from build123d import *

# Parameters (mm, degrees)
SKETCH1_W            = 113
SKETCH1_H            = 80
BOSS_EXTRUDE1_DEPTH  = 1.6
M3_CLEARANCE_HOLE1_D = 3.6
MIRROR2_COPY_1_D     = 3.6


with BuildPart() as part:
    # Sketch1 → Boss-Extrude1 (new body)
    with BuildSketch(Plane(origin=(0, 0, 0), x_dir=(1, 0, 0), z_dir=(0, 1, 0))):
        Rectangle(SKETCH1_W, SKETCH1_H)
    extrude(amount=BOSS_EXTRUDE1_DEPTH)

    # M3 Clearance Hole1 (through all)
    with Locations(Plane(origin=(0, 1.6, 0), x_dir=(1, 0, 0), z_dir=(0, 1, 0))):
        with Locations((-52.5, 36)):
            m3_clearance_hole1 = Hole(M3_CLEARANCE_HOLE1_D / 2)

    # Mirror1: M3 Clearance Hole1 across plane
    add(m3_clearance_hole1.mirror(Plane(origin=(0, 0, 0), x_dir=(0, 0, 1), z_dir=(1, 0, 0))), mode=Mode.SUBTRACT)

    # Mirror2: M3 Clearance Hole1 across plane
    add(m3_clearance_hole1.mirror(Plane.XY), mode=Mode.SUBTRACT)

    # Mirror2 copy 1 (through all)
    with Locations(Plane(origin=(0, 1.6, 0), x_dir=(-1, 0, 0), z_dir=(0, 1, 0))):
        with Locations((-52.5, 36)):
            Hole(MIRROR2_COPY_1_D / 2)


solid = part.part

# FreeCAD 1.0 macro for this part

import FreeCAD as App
import Part
import Sketcher
Q = App.Units.Quantity


def add_polygon(sketch, points):
    """Adds a closed chain of lines whose ends are joined by coincident constraints."""
    first, n = sketch.GeometryCount, len(points)
    for a, b in zip(points, points[1:] + points[:1]):
        sketch.addGeometry(Part.LineSegment(App.Vector(*a, 0), App.Vector(*b, 0)), False)
    for i in range(n):
        sketch.addConstraint(Sketcher.Constraint("Coincident", first + i, 2, first + (i + 1) % n, 1))

doc = App.newDocument("Part")
body = doc.addObject("PartDesign::Body", "Body")

# Sketch on XZ plane
sketch1 = body.newObject("Sketcher::SketchObject", "Sketch")
sketch1.AttachmentSupport = (doc.getObject("XZ_Plane"), [""])
sketch1.MapMode = "FlatFace"
add_polygon(sketch1, [(-56, -40), (-56, 40), (56, 40), (56, -40)])  # lines 0-3
sketch1.addConstraint(Sketcher.Constraint("Vertical", 0))
sketch1.addConstraint(Sketcher.Constraint("Horizontal", 1))
sketch1.addConstraint(Sketcher.Constraint("Vertical", 2))
sketch1.addConstraint(Sketcher.Constraint("Horizontal", 3))
sketch1.addConstraint(Sketcher.Constraint("Symmetric", 0, 2, 2, 2, -1, 1))
sketch1.addConstraint(Sketcher.Constraint("DistanceX", 1, 1, 1, 2, Q("113 mm")))
sketch1.addConstraint(Sketcher.Constraint("DistanceY", 0, 1, 0, 2, Q("80 mm")))
pad1 = body.newObject("PartDesign::Pad", "Pad")
pad1.Profile = sketch1
pad1.Length = 1.6
pad1.Reversed = True

# Sketch on XZ plane
sketch2 = body.newObject("Sketcher::SketchObject", "Sketch001")
sketch2.AttachmentSupport = (doc.getObject("XZ_Plane"), [""])
sketch2.MapMode = "FlatFace"
sketch2.AttachmentOffset = App.Placement(App.Vector(0, 0, -1.6), App.Rotation())
sketch2.addGeometry(Part.Circle(App.Vector(-52.5, -36, 0), App.Vector(0, 0, 1), 1.8), False)
sketch2.addConstraint(Sketcher.Constraint("Diameter", 0, Q("3.6 mm")))
sketch2.addConstraint(Sketcher.Constraint("DistanceY", 0, 3, -1, 1, Q("36 mm")))
sketch2.addConstraint(Sketcher.Constraint("DistanceX", 0, 3, -1, 1, Q("52.5 mm")))
doc.recompute()
hole = body.newObject("PartDesign::Hole", "Hole")
hole.Profile = sketch2
hole.ThreadType = "None"
hole.Diameter = 3.6
hole.DepthType = "ThroughAll"
hole.Reversed = True
doc.recompute()

mirrored = body.newObject("PartDesign::Mirrored", "Mirrored")
mirrored.Originals = [hole]
mirrored.MirrorPlane = (doc.getObject("YZ_Plane"), [""])
body.Tip = mirrored
doc.recompute()

mirrored2 = body.newObject("PartDesign::Mirrored", "Mirrored001")
mirrored2.Originals = [hole]
mirrored2.MirrorPlane = (doc.getObject("XY_Plane"), [""])
body.Tip = mirrored2

# Sketch on XZ plane
sketch3 = body.newObject("Sketcher::SketchObject", "Sketch002")
sketch3.AttachmentSupport = (doc.getObject("XZ_Plane"), [""])
sketch3.MapMode = "FlatFace"
sketch3.AttachmentOffset = App.Placement(App.Vector(0, 0, -1.6), App.Rotation())
sketch3.addGeometry(Part.Circle(App.Vector(52.5, 36, 0), App.Vector(0, 0, 1), 1.8), False)
sketch3.addConstraint(Sketcher.Constraint("Diameter", 0, Q("3.6 mm")))
sketch3.addConstraint(Sketcher.Constraint("DistanceY", -1, 1, 0, 3, Q("36 mm")))
sketch3.addConstraint(Sketcher.Constraint("DistanceX", -1, 1, 0, 3, Q("52.5 mm")))
doc.recompute()
hole2 = body.newObject("PartDesign::Hole", "Hole001")
hole2.Profile = sketch3
hole2.ThreadType = "None"
hole2.Diameter = 3.6
hole2.DepthType = "ThroughAll"
hole2.Reversed = True

doc.recompute()
